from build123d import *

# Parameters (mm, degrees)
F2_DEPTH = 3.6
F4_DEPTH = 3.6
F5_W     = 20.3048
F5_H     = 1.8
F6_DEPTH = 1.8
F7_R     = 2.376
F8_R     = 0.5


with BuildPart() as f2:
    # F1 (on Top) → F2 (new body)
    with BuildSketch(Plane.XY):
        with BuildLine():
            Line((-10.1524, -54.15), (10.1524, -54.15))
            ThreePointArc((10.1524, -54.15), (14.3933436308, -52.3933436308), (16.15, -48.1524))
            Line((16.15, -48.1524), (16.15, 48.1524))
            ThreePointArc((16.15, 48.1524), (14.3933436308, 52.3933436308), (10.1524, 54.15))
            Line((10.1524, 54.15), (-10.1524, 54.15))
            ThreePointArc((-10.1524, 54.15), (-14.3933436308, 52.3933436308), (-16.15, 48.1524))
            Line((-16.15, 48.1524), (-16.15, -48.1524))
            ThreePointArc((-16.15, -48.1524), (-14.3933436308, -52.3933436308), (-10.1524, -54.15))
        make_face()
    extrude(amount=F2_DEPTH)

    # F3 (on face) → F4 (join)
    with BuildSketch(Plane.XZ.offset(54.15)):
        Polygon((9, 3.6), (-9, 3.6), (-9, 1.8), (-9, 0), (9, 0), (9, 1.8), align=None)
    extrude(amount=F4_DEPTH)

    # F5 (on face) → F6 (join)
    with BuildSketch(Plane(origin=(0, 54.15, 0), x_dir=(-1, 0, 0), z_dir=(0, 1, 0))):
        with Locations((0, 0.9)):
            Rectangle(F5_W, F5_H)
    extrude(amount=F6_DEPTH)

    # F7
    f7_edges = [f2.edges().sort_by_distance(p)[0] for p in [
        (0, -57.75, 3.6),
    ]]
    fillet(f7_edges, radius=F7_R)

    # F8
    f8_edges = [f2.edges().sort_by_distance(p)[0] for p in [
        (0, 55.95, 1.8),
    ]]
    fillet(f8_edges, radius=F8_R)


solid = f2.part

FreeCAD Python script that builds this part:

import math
import FreeCAD as App
import Part
import Sketcher
from FreeCAD import Vector


def edges_at(feature, points):
    """Names of the edges that pass closest to the given points."""
    edges = feature.Shape.Edges
    near = lambda p: min(range(len(edges)), key=lambda i: edges[i].distToShape(Part.Vertex(*p))[0])
    return sorted({f"Edge{near(p) + 1}" for p in points})

doc = App.newDocument("Part")
body = doc.addObject("PartDesign::Body", "Body")

# Sketch on XY plane
sketch1 = body.newObject("Sketcher::SketchObject", "Sketch")
sketch1.AttachmentSupport = (doc.getObject("XY_Plane"), [""])
sketch1.MapMode = "FlatFace"
sketch1.addGeometry([
    Part.LineSegment(Vector(-10, -54, 0), Vector(10, -54, 0)),  # 0
    Part.ArcOfCircle(Part.Circle(Vector(10, -48, 0), Vector(0, 0, 1), 6), math.radians(-90), math.radians(0)),  # 1
    Part.LineSegment(Vector(16, -48, 0), Vector(16, 48, 0)),  # 2
    Part.ArcOfCircle(Part.Circle(Vector(10, 48, 0), Vector(0, 0, 1), 6), math.radians(0), math.radians(90)),  # 3
    Part.LineSegment(Vector(10, 54, 0), Vector(-10, 54, 0)),  # 4
    Part.ArcOfCircle(Part.Circle(Vector(-10, 48, 0), Vector(0, 0, 1), 6), math.radians(90), math.radians(180)),  # 5
    Part.LineSegment(Vector(-16, 48, 0), Vector(-16, -48, 0)),  # 6
    Part.ArcOfCircle(Part.Circle(Vector(-10, -48, 0), Vector(0, 0, 1), 6), math.radians(180), math.radians(270)),  # 7
], False)
sketch1.addConstraint([
    Sketcher.Constraint("Tangent", 0, 2, 1, 1),
    Sketcher.Constraint("Tangent", 1, 2, 2, 1),
    Sketcher.Constraint("Tangent", 2, 2, 3, 1),
    Sketcher.Constraint("Tangent", 3, 2, 4, 1),
    Sketcher.Constraint("Tangent", 4, 2, 5, 1),
    Sketcher.Constraint("Tangent", 5, 2, 6, 1),
    Sketcher.Constraint("Tangent", 6, 2, 7, 1),
    Sketcher.Constraint("Tangent", 7, 2, 0, 1),
    Sketcher.Constraint("Horizontal", 0),
    Sketcher.Constraint("Vertical", 2),
    Sketcher.Constraint("Horizontal", 4),
    Sketcher.Constraint("Vertical", 6),
    Sketcher.Constraint("Equal", 1, 3),
    Sketcher.Constraint("Equal", 3, 5),
    Sketcher.Constraint("Equal", 5, 7),
    Sketcher.Constraint("Symmetric", 1, 3, 5, 3, -1, 1),
    Sketcher.Constraint("Radius", 1, 5.9976),
    Sketcher.Constraint("DistanceX", 5, 2, 2, 2, 32.3),
    Sketcher.Constraint("DistanceY", 0, 2, -1, 1, 54.15),
])
pad1 = body.newObject("PartDesign::Pad", "Pad")
pad1.Profile = sketch1
pad1.Length = 3.6

# Sketch on XZ plane
sketch2 = body.newObject("Sketcher::SketchObject", "Sketch001")
sketch2.AttachmentSupport = (doc.getObject("XZ_Plane"), [""])
sketch2.MapMode = "FlatFace"
sketch2.AttachmentOffset = App.Placement(Vector(0, 0, 54.15), App.Rotation())
sketch2.addGeometry([
    Part.LineSegment(Vector(9, 3.6, 0), Vector(-9, 3.6, 0)),
    Part.LineSegment(Vector(-9, 3.6, 0), Vector(-9, 0, 0)),
    Part.LineSegment(Vector(-9, 0, 0), Vector(9, 0, 0)),
    Part.LineSegment(Vector(9, 0, 0), Vector(9, 3.6, 0)),
], False)
sketch2.addConstraint([
    Sketcher.Constraint("Coincident", 0, 2, 1, 1),
    Sketcher.Constraint("Coincident", 1, 2, 2, 1),
    Sketcher.Constraint("Coincident", 2, 2, 3, 1),
    Sketcher.Constraint("Coincident", 3, 2, 0, 1),
    Sketcher.Constraint("Horizontal", 0),
    Sketcher.Constraint("Vertical", 1),
    Sketcher.Constraint("Horizontal", 2),
    Sketcher.Constraint("Vertical", 3),
    Sketcher.Constraint("Symmetric", 1, 2, 2, 2, -1, 1),
    Sketcher.Constraint("DistanceX", 0, 2, 0, 1, 18.0),
    Sketcher.Constraint("DistanceY", 1, 2, 1, 1, 3.6),
])
pad2 = body.newObject("PartDesign::Pad", "Pad001")
pad2.Profile = sketch2
pad2.Length = 3.6

# Sketch on XZ plane
sketch3 = body.newObject("Sketcher::SketchObject", "Sketch002")
sketch3.AttachmentSupport = (doc.getObject("XZ_Plane"), [""])
sketch3.MapMode = "FlatFace"
sketch3.AttachmentOffset = App.Placement(Vector(0, 0, -54.15), App.Rotation())
sketch3.addGeometry([
    Part.LineSegment(Vector(10.2, 1.8, 0), Vector(10.2, 0, 0)),
    Part.LineSegment(Vector(10.2, 0, 0), Vector(-10.2, 0, 0)),
    Part.LineSegment(Vector(-10.2, 0, 0), Vector(-10.2, 1.8, 0)),
    Part.LineSegment(Vector(-10.2, 1.8, 0), Vector(10.2, 1.8, 0)),
], False)
sketch3.addConstraint([
    Sketcher.Constraint("Coincident", 0, 2, 1, 1),
    Sketcher.Constraint("Coincident", 1, 2, 2, 1),
    Sketcher.Constraint("Coincident", 2, 2, 3, 1),
    Sketcher.Constraint("Coincident", 3, 2, 0, 1),
    Sketcher.Constraint("Vertical", 0),
    Sketcher.Constraint("Horizontal", 1),
    Sketcher.Constraint("Vertical", 2),
    Sketcher.Constraint("Horizontal", 3),
    Sketcher.Constraint("Symmetric", 0, 2, 1, 2, -1, 1),
    Sketcher.Constraint("DistanceY", 0, 2, 0, 1, 1.8),
    Sketcher.Constraint("DistanceX", 1, 2, 1, 1, 20.3048),
])
pad3 = body.newObject("PartDesign::Pad", "Pad002")
pad3.Profile = sketch3
pad3.Length = 1.8
pad3.Reversed = True
doc.recompute()

fillet = body.newObject("PartDesign::Fillet", "Fillet")
fillet.Base = (pad3, edges_at(pad3, [(0, -57.75, 3.6)]))
fillet.Radius = 2.376
doc.recompute()

fillet2 = body.newObject("PartDesign::Fillet", "Fillet001")
fillet2.Base = (fillet, edges_at(fillet, [(0, 55.95, 1.8)]))
fillet2.Radius = 0.5

doc.recompute()
